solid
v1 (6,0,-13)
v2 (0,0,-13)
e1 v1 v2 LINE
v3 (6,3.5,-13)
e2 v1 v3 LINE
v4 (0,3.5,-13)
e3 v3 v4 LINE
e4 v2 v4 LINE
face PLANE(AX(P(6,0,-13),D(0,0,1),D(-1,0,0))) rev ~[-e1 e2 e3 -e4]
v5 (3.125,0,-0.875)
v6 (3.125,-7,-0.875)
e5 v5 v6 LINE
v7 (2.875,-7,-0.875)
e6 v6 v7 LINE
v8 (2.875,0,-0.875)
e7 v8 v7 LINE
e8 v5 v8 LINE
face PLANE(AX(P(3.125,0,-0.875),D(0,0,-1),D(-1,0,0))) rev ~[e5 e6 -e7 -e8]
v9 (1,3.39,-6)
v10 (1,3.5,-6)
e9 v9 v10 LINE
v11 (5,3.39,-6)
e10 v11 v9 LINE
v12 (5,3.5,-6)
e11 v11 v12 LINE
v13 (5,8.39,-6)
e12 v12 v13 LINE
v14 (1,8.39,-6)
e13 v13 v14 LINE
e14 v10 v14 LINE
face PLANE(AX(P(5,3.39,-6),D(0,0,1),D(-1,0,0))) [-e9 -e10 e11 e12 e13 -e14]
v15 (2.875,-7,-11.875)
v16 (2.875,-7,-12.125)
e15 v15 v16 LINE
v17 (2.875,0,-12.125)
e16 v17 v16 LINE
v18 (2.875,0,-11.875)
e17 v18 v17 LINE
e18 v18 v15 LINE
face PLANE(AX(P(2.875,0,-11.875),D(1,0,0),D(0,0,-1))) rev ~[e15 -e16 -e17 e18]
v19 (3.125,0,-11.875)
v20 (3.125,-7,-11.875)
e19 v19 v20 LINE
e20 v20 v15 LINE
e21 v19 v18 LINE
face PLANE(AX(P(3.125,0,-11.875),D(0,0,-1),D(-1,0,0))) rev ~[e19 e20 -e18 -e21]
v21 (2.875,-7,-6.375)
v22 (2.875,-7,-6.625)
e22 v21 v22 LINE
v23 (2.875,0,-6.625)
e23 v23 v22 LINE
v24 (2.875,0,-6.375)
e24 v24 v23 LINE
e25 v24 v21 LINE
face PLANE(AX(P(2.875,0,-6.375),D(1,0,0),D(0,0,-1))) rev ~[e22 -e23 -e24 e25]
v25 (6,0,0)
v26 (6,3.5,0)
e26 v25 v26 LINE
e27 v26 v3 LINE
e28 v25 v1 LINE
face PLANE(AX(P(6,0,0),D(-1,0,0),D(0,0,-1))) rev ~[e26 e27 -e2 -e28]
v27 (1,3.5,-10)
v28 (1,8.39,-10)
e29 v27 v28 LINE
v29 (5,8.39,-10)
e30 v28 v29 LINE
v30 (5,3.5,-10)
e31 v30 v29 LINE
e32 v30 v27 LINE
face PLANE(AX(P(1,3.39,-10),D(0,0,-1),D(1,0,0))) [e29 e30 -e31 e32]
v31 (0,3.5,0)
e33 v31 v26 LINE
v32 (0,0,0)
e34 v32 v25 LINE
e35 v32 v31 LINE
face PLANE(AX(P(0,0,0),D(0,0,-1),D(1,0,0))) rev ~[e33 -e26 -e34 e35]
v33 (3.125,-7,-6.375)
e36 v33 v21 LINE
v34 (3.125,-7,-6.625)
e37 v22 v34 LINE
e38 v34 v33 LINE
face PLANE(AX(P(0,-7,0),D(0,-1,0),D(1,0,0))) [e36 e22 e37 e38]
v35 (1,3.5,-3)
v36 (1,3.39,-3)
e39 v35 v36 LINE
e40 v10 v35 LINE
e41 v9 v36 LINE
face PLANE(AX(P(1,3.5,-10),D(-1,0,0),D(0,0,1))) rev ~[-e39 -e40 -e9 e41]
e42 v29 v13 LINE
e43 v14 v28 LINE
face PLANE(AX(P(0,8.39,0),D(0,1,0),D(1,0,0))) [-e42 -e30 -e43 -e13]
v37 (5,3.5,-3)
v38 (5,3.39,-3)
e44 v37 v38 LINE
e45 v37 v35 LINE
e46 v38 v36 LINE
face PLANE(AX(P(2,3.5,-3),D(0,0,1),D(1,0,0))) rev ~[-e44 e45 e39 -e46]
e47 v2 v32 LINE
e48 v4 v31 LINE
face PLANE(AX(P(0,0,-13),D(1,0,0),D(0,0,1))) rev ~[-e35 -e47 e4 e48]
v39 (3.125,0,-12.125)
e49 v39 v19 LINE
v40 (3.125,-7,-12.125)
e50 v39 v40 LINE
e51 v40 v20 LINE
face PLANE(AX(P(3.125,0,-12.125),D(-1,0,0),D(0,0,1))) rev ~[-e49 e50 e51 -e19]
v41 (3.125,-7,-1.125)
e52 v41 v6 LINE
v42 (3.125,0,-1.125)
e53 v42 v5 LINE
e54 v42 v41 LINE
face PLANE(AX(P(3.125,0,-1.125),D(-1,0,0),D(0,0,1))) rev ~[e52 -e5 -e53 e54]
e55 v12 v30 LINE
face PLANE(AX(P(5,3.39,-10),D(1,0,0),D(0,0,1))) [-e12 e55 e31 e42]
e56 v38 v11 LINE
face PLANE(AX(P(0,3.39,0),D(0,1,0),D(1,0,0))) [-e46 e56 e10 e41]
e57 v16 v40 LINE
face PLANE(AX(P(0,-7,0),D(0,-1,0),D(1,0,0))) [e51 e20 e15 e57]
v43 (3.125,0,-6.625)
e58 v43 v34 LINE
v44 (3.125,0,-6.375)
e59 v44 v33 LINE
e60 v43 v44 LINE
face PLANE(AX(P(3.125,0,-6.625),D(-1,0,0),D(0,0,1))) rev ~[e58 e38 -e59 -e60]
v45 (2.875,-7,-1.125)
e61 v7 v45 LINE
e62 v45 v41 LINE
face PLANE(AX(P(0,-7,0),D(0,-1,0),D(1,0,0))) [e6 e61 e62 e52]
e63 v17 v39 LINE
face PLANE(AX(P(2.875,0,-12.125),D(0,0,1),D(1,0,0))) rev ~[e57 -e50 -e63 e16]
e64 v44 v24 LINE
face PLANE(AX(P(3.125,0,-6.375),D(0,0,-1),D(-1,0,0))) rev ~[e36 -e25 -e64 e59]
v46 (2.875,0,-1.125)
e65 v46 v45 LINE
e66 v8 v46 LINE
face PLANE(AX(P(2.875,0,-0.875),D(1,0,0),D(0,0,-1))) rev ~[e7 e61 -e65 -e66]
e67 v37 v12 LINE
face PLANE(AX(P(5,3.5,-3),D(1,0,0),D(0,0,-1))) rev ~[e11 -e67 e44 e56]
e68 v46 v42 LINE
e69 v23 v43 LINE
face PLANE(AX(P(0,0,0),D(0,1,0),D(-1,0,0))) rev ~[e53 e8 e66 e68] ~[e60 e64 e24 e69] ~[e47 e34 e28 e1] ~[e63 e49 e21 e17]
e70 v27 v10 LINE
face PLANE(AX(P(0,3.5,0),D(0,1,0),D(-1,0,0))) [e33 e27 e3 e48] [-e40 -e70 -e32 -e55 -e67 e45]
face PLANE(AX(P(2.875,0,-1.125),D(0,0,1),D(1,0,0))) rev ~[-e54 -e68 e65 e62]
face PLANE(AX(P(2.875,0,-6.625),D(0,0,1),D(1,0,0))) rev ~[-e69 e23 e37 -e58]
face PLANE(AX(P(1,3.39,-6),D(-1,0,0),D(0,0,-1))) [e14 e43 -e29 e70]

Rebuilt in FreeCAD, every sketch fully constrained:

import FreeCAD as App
import Part
import Sketcher

V = App.Vector
Q = App.Units.Quantity

doc = App.newDocument("Part")
body = doc.addObject("PartDesign::Body", "Body")

# Sketch on XZ plane
sketch1 = body.newObject("Sketcher::SketchObject", "Sketch")
sketch1.AttachmentSupport = (doc.getObject("XZ_Plane"), [""])
sketch1.MapMode = "FlatFace"
sketch1.addGeometry([
    Part.LineSegment(V(0, -13, 0), V(0, 0, 0)),
    Part.LineSegment(V(0, 0, 0), V(6, 0, 0)),
    Part.LineSegment(V(6, 0, 0), V(6, -13, 0)),
    Part.LineSegment(V(6, -13, 0), V(0, -13, 0)),
], False)
sketch1.addConstraint([
    Sketcher.Constraint("Coincident", 0, 2, 1, 1),
    Sketcher.Constraint("Coincident", 1, 2, 2, 1),
    Sketcher.Constraint("Coincident", 2, 2, 3, 1),
    Sketcher.Constraint("Coincident", 3, 2, 0, 1),
    Sketcher.Constraint("Vertical", 0),
    Sketcher.Constraint("Horizontal", 1),
    Sketcher.Constraint("Vertical", 2),
    Sketcher.Constraint("Horizontal", 3),
    Sketcher.Constraint("Coincident", 0, 2, -1, 1),
    Sketcher.Constraint("DistanceX", 1, 1, 1, 2, Q("6 mm")),
    Sketcher.Constraint("DistanceY", 0, 1, 0, 2, Q("13 mm")),
])
pad1 = body.newObject("PartDesign::Pad", "Pad")
pad1.Profile = sketch1
pad1.Length = 3.5
pad1.Reversed = True

# Sketch on XZ plane
sketch2 = body.newObject("Sketcher::SketchObject", "Sketch001")
sketch2.AttachmentSupport = (doc.getObject("XZ_Plane"), [""])
sketch2.MapMode = "FlatFace"
sketch2.AttachmentOffset = App.Placement(V(0, 0, -3.5), App.Rotation())
sketch2.addGeometry([
    Part.LineSegment(V(1, -3, 0), V(5, -3, 0)),
    Part.LineSegment(V(5, -3, 0), V(5, -10, 0)),
    Part.LineSegment(V(5, -10, 0), V(1, -10, 0)),
    Part.LineSegment(V(1, -10, 0), V(1, -3, 0)),
], False)
sketch2.addConstraint([
    Sketcher.Constraint("Coincident", 0, 2, 1, 1),
    Sketcher.Constraint("Coincident", 1, 2, 2, 1),
    Sketcher.Constraint("Coincident", 2, 2, 3, 1),
    Sketcher.Constraint("Coincident", 3, 2, 0, 1),
    Sketcher.Constraint("Horizontal", 0),
    Sketcher.Constraint("Vertical", 1),
    Sketcher.Constraint("Horizontal", 2),
    Sketcher.Constraint("Vertical", 3),
    Sketcher.Constraint("DistanceY", 0, 2, -1, 1, Q("3 mm")),
    Sketcher.Constraint("DistanceX", -1, 1, 2, 2, Q("1 mm")),
    Sketcher.Constraint("DistanceX", 0, 1, 0, 2, Q("4 mm")),
    Sketcher.Constraint("DistanceY", 1, 2, 1, 1, Q("7 mm")),
])
pocket1 = body.newObject("PartDesign::Pocket", "Pocket")
pocket1.Profile = sketch2
pocket1.Length = 0.11
pocket1.Reversed = True

# Sketch on XZ plane
sketch3 = body.newObject("Sketcher::SketchObject", "Sketch002")
sketch3.AttachmentSupport = (doc.getObject("XZ_Plane"), [""])
sketch3.MapMode = "FlatFace"
sketch3.AttachmentOffset = App.Placement(V(0, 0, -3.39), App.Rotation())
sketch3.addGeometry([
    Part.LineSegment(V(1, -10, 0), V(1, -6, 0)),
    Part.LineSegment(V(1, -6, 0), V(5, -6, 0)),
    Part.LineSegment(V(5, -6, 0), V(5, -10, 0)),
    Part.LineSegment(V(5, -10, 0), V(1, -10, 0)),
], False)
sketch3.addConstraint([
    Sketcher.Constraint("Coincident", 0, 2, 1, 1),
    Sketcher.Constraint("Coincident", 1, 2, 2, 1),
    Sketcher.Constraint("Coincident", 2, 2, 3, 1),
    Sketcher.Constraint("Coincident", 3, 2, 0, 1),
    Sketcher.Constraint("Vertical", 0),
    Sketcher.Constraint("Horizontal", 1),
    Sketcher.Constraint("Vertical", 2),
    Sketcher.Constraint("Horizontal", 3),
    Sketcher.Constraint("Equal", 3, 0),
    Sketcher.Constraint("DistanceX", 1, 1, 1, 2, Q("4 mm")),
    Sketcher.Constraint("DistanceX", -1, 1, 0, 2, Q("1 mm")),
    Sketcher.Constraint("DistanceY", 0, 2, -1, 1, Q("6 mm")),
])
pad2 = body.newObject("PartDesign::Pad", "Pad001")
pad2.Profile = sketch3
pad2.Length = 5
pad2.Reversed = True

# Sketch on XZ plane
sketch4 = body.newObject("Sketcher::SketchObject", "Sketch003")
sketch4.AttachmentSupport = (doc.getObject("XZ_Plane"), [""])
sketch4.MapMode = "FlatFace"
sketch4.addGeometry([
    Part.LineSegment(V(2.88, -0.88, 0), V(2.88, -1.12, 0)),  # 0
    Part.LineSegment(V(2.88, -1.12, 0), V(3.12, -1.12, 0)),  # 1
    Part.LineSegment(V(3.12, -1.12, 0), V(3.12, -0.88, 0)),  # 2
    Part.LineSegment(V(3.12, -0.88, 0), V(2.88, -0.88, 0)),  # 3
    Part.LineSegment(V(2.88, -11.88, 0), V(2.88, -12.12, 0)),  # 4
    Part.LineSegment(V(2.88, -12.12, 0), V(3.12, -12.12, 0)),  # 5
    Part.LineSegment(V(3.12, -12.12, 0), V(3.12, -11.88, 0)),  # 6
    Part.LineSegment(V(3.12, -11.88, 0), V(2.88, -11.88, 0)),  # 7
    Part.LineSegment(V(2.88, -6.38, 0), V(2.88, -6.62, 0)),  # 8
    Part.LineSegment(V(2.88, -6.62, 0), V(3.12, -6.62, 0)),  # 9
    Part.LineSegment(V(3.12, -6.62, 0), V(3.12, -6.38, 0)),  # 10
    Part.LineSegment(V(3.12, -6.38, 0), V(2.88, -6.38, 0)),  # 11
], False)
sketch4.addConstraint([
    Sketcher.Constraint("Coincident", 0, 2, 1, 1),
    Sketcher.Constraint("Coincident", 1, 2, 2, 1),
    Sketcher.Constraint("Coincident", 2, 2, 3, 1),
    Sketcher.Constraint("Coincident", 3, 2, 0, 1),
    Sketcher.Constraint("Coincident", 4, 2, 5, 1),
    Sketcher.Constraint("Coincident", 5, 2, 6, 1),
    Sketcher.Constraint("Coincident", 6, 2, 7, 1),
    Sketcher.Constraint("Coincident", 7, 2, 4, 1),
    Sketcher.Constraint("Coincident", 8, 2, 9, 1),
    Sketcher.Constraint("Coincident", 9, 2, 10, 1),
    Sketcher.Constraint("Coincident", 10, 2, 11, 1),
    Sketcher.Constraint("Coincident", 11, 2, 8, 1),
    Sketcher.Constraint("Vertical", 0),
    Sketcher.Constraint("Horizontal", 1),
    Sketcher.Constraint("Vertical", 2),
    Sketcher.Constraint("Horizontal", 3),
    Sketcher.Constraint("Vertical", 4),
    Sketcher.Constraint("Horizontal", 5),
    Sketcher.Constraint("Vertical", 6),
    Sketcher.Constraint("Horizontal", 7),
    Sketcher.Constraint("Vertical", 8),
    Sketcher.Constraint("Horizontal", 9),
    Sketcher.Constraint("Vertical", 10),
    Sketcher.Constraint("Horizontal", 11),
    Sketcher.Constraint("Vertical", 3, 2, 4, 2),
    Sketcher.Constraint("Vertical", 2, 2, 5, 2),
    Sketcher.Constraint("Vertical", 7, 2, 8, 2),
    Sketcher.Constraint("Vertical", 6, 2, 9, 2),
    Sketcher.Constraint("Equal", 11, 0),
    Sketcher.Constraint("Equal", 2, 4),
    Sketcher.Constraint("Equal", 6, 8),
    Sketcher.Constraint("DistanceX", 1, 1, 1, 2, Q("0.25 mm")),
    Sketcher.Constraint("DistanceY", 8, 2, 0, 2, Q("5.5 mm")),
    Sketcher.Constraint("DistanceY", 4, 2, 8, 2, Q("5.5 mm")),
    Sketcher.Constraint("DistanceX", -1, 1, 0, 2, Q("2.875 mm")),
    Sketcher.Constraint("DistanceY", 0, 2, -1, 1, Q("1.125 mm")),
])
pad3 = body.newObject("PartDesign::Pad", "Pad002")
pad3.Profile = sketch4
pad3.Length = 7

doc.recompute()
